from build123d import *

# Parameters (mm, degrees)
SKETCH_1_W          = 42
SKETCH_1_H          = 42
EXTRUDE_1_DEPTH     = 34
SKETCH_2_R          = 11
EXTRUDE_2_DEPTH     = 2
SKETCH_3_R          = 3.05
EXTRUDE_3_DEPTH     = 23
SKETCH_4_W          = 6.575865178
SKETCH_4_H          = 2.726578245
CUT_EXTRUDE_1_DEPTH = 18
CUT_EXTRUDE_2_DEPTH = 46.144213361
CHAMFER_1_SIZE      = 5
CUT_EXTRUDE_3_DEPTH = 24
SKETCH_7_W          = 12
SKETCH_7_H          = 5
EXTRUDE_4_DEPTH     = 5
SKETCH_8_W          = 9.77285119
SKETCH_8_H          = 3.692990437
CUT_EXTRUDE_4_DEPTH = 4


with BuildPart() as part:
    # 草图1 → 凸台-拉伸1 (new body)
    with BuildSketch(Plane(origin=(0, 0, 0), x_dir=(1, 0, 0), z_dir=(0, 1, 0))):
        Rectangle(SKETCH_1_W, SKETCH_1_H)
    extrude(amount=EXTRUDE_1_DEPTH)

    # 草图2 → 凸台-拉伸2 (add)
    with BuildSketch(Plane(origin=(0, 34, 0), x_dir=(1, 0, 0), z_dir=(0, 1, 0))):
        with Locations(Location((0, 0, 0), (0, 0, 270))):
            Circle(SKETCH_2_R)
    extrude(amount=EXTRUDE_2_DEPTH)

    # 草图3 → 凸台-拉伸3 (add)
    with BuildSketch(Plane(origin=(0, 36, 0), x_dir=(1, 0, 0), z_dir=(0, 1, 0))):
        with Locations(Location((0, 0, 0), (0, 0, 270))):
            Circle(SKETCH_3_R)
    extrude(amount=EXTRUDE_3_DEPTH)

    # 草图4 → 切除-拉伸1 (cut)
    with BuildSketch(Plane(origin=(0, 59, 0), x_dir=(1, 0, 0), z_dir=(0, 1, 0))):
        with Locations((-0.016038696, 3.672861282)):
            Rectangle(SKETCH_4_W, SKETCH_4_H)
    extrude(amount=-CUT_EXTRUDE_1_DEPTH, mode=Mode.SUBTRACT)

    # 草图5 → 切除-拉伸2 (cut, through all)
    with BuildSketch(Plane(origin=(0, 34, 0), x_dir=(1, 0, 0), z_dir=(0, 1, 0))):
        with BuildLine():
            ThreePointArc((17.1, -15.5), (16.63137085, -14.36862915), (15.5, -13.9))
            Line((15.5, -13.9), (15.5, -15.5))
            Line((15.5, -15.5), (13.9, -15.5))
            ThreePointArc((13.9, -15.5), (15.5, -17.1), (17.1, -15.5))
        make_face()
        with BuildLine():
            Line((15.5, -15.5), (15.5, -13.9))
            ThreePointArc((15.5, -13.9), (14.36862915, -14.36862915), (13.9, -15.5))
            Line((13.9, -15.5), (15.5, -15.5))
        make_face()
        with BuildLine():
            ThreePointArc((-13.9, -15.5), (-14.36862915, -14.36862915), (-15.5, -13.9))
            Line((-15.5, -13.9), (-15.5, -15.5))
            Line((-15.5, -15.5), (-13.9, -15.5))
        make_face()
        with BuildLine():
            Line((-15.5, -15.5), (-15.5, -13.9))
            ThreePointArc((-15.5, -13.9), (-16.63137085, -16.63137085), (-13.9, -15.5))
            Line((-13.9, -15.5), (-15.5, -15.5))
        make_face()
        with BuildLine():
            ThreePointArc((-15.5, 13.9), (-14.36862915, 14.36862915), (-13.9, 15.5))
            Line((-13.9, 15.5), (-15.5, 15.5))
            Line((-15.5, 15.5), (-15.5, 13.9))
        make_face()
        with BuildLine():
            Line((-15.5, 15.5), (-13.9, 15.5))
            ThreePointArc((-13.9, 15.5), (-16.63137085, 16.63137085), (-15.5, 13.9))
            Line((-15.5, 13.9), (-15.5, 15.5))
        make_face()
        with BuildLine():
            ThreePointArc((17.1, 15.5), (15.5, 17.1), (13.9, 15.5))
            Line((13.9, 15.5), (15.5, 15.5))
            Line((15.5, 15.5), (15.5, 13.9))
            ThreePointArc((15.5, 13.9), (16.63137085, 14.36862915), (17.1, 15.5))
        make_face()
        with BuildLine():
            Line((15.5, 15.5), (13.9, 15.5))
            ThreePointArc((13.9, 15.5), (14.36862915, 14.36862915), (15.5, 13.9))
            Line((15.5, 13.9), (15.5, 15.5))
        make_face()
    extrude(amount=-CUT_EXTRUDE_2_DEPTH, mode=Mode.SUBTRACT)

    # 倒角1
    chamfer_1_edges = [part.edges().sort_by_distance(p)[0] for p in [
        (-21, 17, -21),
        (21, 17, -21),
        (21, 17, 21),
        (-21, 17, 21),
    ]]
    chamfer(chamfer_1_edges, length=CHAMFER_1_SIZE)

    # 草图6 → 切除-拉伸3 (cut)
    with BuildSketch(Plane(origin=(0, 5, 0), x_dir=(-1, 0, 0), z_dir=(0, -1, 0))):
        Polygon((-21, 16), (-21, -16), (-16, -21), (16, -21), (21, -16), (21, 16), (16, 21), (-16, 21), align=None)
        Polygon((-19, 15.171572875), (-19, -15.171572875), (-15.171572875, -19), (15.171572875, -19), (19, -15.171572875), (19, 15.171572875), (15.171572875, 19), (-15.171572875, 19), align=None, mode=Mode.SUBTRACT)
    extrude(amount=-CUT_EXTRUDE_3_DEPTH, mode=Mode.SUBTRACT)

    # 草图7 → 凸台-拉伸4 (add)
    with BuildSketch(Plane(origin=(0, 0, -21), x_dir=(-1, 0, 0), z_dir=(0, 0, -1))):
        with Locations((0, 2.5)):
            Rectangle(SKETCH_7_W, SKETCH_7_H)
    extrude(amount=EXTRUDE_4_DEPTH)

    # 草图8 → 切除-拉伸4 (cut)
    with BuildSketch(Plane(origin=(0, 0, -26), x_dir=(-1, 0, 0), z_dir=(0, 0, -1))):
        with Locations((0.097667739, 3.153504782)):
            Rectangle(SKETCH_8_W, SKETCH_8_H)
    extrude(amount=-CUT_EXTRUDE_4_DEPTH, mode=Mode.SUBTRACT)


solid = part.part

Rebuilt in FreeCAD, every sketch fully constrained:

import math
import FreeCAD as App
import Part
import Sketcher
from FreeCAD import Vector


def edges_at(feature, points):
    """Names of the edges that pass closest to the given points."""
    edges = feature.Shape.Edges
    near = lambda p: min(range(len(edges)), key=lambda i: edges[i].distToShape(Part.Vertex(*p))[0])
    return sorted({f"Edge{near(p) + 1}" for p in points})


def add_polygon(sketch, points):
    """Adds a closed chain of lines whose ends are joined by coincident constraints."""
    first, n = sketch.GeometryCount, len(points)
    for a, b in zip(points, points[1:] + points[:1]):
        sketch.addGeometry(Part.LineSegment(App.Vector(*a, 0), App.Vector(*b, 0)), False)
    for i in range(n):
        sketch.addConstraint(Sketcher.Constraint("Coincident", first + i, 2, first + (i + 1) % n, 1))

doc = App.newDocument("Part")
body = doc.addObject("PartDesign::Body", "Body")

# Sketch on XZ plane
sketch1 = body.newObject("Sketcher::SketchObject", "Sketch")
sketch1.AttachmentSupport = (doc.getObject("XZ_Plane"), [""])
sketch1.MapMode = "FlatFace"
add_polygon(sketch1, [(-21, -21), (-21, 21), (21, 21), (21, -21)])  # lines 0-3
sketch1.addConstraint([
    Sketcher.Constraint("Vertical", 0),
    Sketcher.Constraint("Horizontal", 1),
    Sketcher.Constraint("Vertical", 2),
    Sketcher.Constraint("Horizontal", 3),
    Sketcher.Constraint("Symmetric", 0, 2, 2, 2, -1, 1),
    Sketcher.Constraint("Equal", 3, 0),
    Sketcher.Constraint("DistanceX", 1, 1, 1, 2, 42.0),
])
pad1 = body.newObject("PartDesign::Pad", "Pad")
pad1.Profile = sketch1
pad1.Length = 34
pad1.Reversed = True

# Sketch on XZ plane
sketch2 = body.newObject("Sketcher::SketchObject", "Sketch001")
sketch2.AttachmentSupport = (doc.getObject("XZ_Plane"), [""])
sketch2.MapMode = "FlatFace"
sketch2.AttachmentOffset = App.Placement(Vector(0, 0, -34), App.Rotation())
sketch2.addGeometry(Part.Circle(Vector(0, 0, 0), Vector(0, 0, 1), 11), False)
sketch2.addConstraint([
    Sketcher.Constraint("Coincident", 0, 3, -1, 1),
    Sketcher.Constraint("Diameter", 0, 22.0),
])
pad2 = body.newObject("PartDesign::Pad", "Pad001")
pad2.Profile = sketch2
pad2.Length = 2
pad2.Reversed = True

# Sketch on XZ plane
sketch3 = body.newObject("Sketcher::SketchObject", "Sketch002")
sketch3.AttachmentSupport = (doc.getObject("XZ_Plane"), [""])
sketch3.MapMode = "FlatFace"
sketch3.AttachmentOffset = App.Placement(Vector(0, 0, -36), App.Rotation())
sketch3.addGeometry(Part.Circle(Vector(0, 0, 0), Vector(0, 0, 1), 3), False)
sketch3.addConstraint([
    Sketcher.Constraint("Coincident", 0, 3, -1, 1),
    Sketcher.Constraint("Diameter", 0, 6.1),
])
pad3 = body.newObject("PartDesign::Pad", "Pad002")
pad3.Profile = sketch3
pad3.Length = 23
pad3.Reversed = True

# Sketch on XZ plane
sketch4 = body.newObject("Sketcher::SketchObject", "Sketch003")
sketch4.AttachmentSupport = (doc.getObject("XZ_Plane"), [""])
sketch4.MapMode = "FlatFace"
sketch4.AttachmentOffset = App.Placement(Vector(0, 0, -59), App.Rotation())
add_polygon(sketch4, [(-3.3, -5), (-3.3, -2.3), (3.3, -2.3), (3.3, -5)])  # lines 0-3
sketch4.addConstraint([
    Sketcher.Constraint("Vertical", 0),
    Sketcher.Constraint("Horizontal", 1),
    Sketcher.Constraint("Vertical", 2),
    Sketcher.Constraint("Horizontal", 3),
    Sketcher.Constraint("DistanceY", 0, 1, 0, 2, 2.726578),
    Sketcher.Constraint("DistanceX", 1, 1, 1, 2, 6.575865),
    Sketcher.Constraint("DistanceX", 0, 2, -1, 1, 3.303971),
    Sketcher.Constraint("DistanceY", 2, 2, -1, 1, 5.03615),
])
pocket1 = body.newObject("PartDesign::Pocket", "Pocket")
pocket1.Profile = sketch4
pocket1.Length = 18
pocket1.Reversed = True

# Sketch on XZ plane
sketch5 = body.newObject("Sketcher::SketchObject", "Sketch004")
sketch5.AttachmentSupport = (doc.getObject("XZ_Plane"), [""])
sketch5.MapMode = "FlatFace"
sketch5.AttachmentOffset = App.Placement(Vector(0, 0, -34), App.Rotation())
sketch5.addGeometry([
    Part.ArcOfCircle(Part.Circle(Vector(15.5, 15.5, 0), Vector(0, 0, 1), 1.6), math.radians(-90), math.radians(0)),  # 0
    Part.ArcOfCircle(Part.Circle(Vector(15.5, 15.5, 0), Vector(0, 0, 1), 1.6), math.radians(180), math.radians(270)),  # 1
    Part.ArcOfCircle(Part.Circle(Vector(15.5, 15.5, 0), Vector(0, 0, 1), 1.6), math.radians(0), math.radians(180)),  # 2
    Part.ArcOfCircle(Part.Circle(Vector(-15.5, 15.5, 0), Vector(0, 0, 1), 1.6), math.radians(-90), math.radians(0)),  # 3
    Part.ArcOfCircle(Part.Circle(Vector(-15.5, 15.5, 0), Vector(0, 0, 1), 1.6), math.radians(0), math.radians(270)),  # 4
    Part.ArcOfCircle(Part.Circle(Vector(-15.5, -15.5, 0), Vector(0, 0, 1), 1.6), math.radians(0), math.radians(90)),  # 5
    Part.ArcOfCircle(Part.Circle(Vector(-15.5, -15.5, 0), Vector(0, 0, 1), 1.6), math.radians(90), math.radians(360)),  # 6
    Part.ArcOfCircle(Part.Circle(Vector(15.5, -15.5, 0), Vector(0, 0, 1), 1.6), math.radians(180), math.radians(360)),  # 7
    Part.ArcOfCircle(Part.Circle(Vector(15.5, -15.5, 0), Vector(0, 0, 1), 1.6), math.radians(90), math.radians(180)),  # 8
    Part.ArcOfCircle(Part.Circle(Vector(15.5, -15.5, 0), Vector(0, 0, 1), 1.6), math.radians(0), math.radians(90)),  # 9
], False)
sketch5.addConstraint([
    Sketcher.Constraint("Tangent", 0, 1, 1, 2),
    Sketcher.Constraint("Tangent", 1, 1, 2, 2),
    Sketcher.Constraint("Tangent", 2, 1, 0, 2),
    Sketcher.Constraint("Tangent", 3, 1, 4, 2),
    Sketcher.Constraint("Coincident", 4, 1, 3, 2),
    Sketcher.Constraint("Tangent", 5, 1, 6, 2),
    Sketcher.Constraint("Coincident", 6, 1, 5, 2),
    Sketcher.Constraint("Tangent", 7, 1, 8, 2),
    Sketcher.Constraint("Tangent", 8, 1, 9, 2),
    Sketcher.Constraint("Tangent", 9, 1, 7, 2),
    Sketcher.Constraint("Equal", 2, 3),
    Sketcher.Constraint("Equal", 4, 5),
    Sketcher.Constraint("Equal", 6, 7),
    Sketcher.Constraint("Symmetric", 0, 3, 5, 3, -1, 1),
    Sketcher.Constraint("Symmetric", 3, 3, 7, 3, -1, 1),
    Sketcher.Constraint("Symmetric", 0, 3, 3, 3, -2),
    Sketcher.Constraint("Horizontal", 4, 3, 1, 1),
    Sketcher.Constraint("Horizontal", 1, 1, 2, 1),
    Sketcher.Constraint("Horizontal", 2, 1, 4, 1),
    Sketcher.Constraint("Horizontal", 9, 3, 5, 1),
    Sketcher.Constraint("Horizontal", 5, 1, 7, 1),
    Sketcher.Constraint("Horizontal", 7, 1, 9, 1),
    Sketcher.Constraint("Vertical", 9, 3, 0, 1),
    Sketcher.Constraint("Vertical", 6, 3, 3, 1),
    Sketcher.Constraint("Vertical", 3, 1, 6, 1),
    Sketcher.Constraint("Vertical", 0, 1, 8, 1),
    Sketcher.Constraint("Radius", 0, 1.6),
    Sketcher.Constraint("DistanceX", 3, 3, 0, 3, 31.0),
    Sketcher.Constraint("DistanceY", 5, 3, 3, 3, 31.0),
])
pocket2 = body.newObject("PartDesign::Pocket", "Pocket001")
pocket2.Profile = sketch5
pocket2.Type = "ThroughAll"
pocket2.Reversed = True
doc.recompute()

chamfer = body.newObject("PartDesign::Chamfer", "Chamfer")
chamfer.Base = (pocket2, edges_at(pocket2, [
    (-21, 17, -21),
    (21, 17, -21),
    (21, 17, 21),
    (-21, 17, 21),
]))
chamfer.Size = 5

# Sketch on XZ plane
sketch6 = body.newObject("Sketcher::SketchObject", "Sketch005")
sketch6.AttachmentSupport = (doc.getObject("XZ_Plane"), [""])
sketch6.MapMode = "FlatFace"
sketch6.AttachmentOffset = App.Placement(Vector(0, 0, -5), App.Rotation())
add_polygon(sketch6, [(21, -16), (21, 16), (16, 21), (-16, 21), (-21, 16), (-21, -16), (-16, -21), (16, -21)])  # lines 0-7
add_polygon(sketch6, [(19, 15), (19, -15), (15, -19), (-15, -19), (-19, -15), (-19, 15), (-15, 19), (15, 19)])  # lines 8-15
sketch6.addConstraint([
    Sketcher.Constraint("Vertical", 0),
    Sketcher.Constraint("Horizontal", 2),
    Sketcher.Constraint("Vertical", 4),
    Sketcher.Constraint("Horizontal", 6),
    Sketcher.Constraint("Vertical", 8),
    Sketcher.Constraint("Horizontal", 10),
    Sketcher.Constraint("Vertical", 12),
    Sketcher.Constraint("Horizontal", 14),
    Sketcher.Constraint("Symmetric", 0, 2, 4, 2, -1, 1),
    Sketcher.Constraint("Symmetric", 1, 2, 5, 2, -1, 1),
    Sketcher.Constraint("Symmetric", 8, 2, 12, 2, -1, 1),
    Sketcher.Constraint("Symmetric", 9, 2, 13, 2, -1, 1),
    Sketcher.Constraint("Perpendicular", 1, 3),
    Sketcher.Constraint("Perpendicular", 5, 7),
    Sketcher.Constraint("Parallel", 7, 9),
    Sketcher.Constraint("Perpendicular", 9, 11),
    Sketcher.Constraint("Perpendicular", 13, 15),
    Sketcher.Constraint("Horizontal", 0, 2, 3, 2),
    Sketcher.Constraint("Horizontal", 4, 2, 7, 2),
    Sketcher.Constraint("Horizontal", 8, 2, 11, 2),
    Sketcher.Constraint("Horizontal", 12, 2, 15, 2),
    Sketcher.Constraint("Vertical", 2, 2, 5, 2),
    Sketcher.Constraint("Equal", 6, 0),
    Sketcher.Constraint("Equal", 14, 8),
    Sketcher.Constraint("DistanceX", 2, 2, 2, 1, 32.0),
    Sketcher.Constraint("DistanceX", -1, 1, 0, 2, 21.0),
    Sketcher.Constraint("DistanceX", -1, 1, 8, 2, 19.0),
    Sketcher.Constraint("DistanceX", 10, 2, 10, 1, 30.343146),
])
pocket3 = body.newObject("PartDesign::Pocket", "Pocket002")
pocket3.Profile = sketch6
pocket3.Length = 24

# Sketch on XY plane
sketch7 = body.newObject("Sketcher::SketchObject", "Sketch006")
sketch7.AttachmentSupport = (doc.getObject("XY_Plane"), [""])
sketch7.MapMode = "FlatFace"
sketch7.AttachmentOffset = App.Placement(Vector(0, 0, -21), App.Rotation())
add_polygon(sketch7, [(6, 5), (6, 0), (-6, 0), (-6, 5)])  # lines 0-3
sketch7.addConstraint([
    Sketcher.Constraint("Vertical", 0),
    Sketcher.Constraint("Horizontal", 1),
    Sketcher.Constraint("Vertical", 2),
    Sketcher.Constraint("Horizontal", 3),
    Sketcher.Constraint("Symmetric", 0, 2, 1, 2, -1, 1),
    Sketcher.Constraint("DistanceX", 1, 2, 1, 1, 12.0),
    Sketcher.Constraint("DistanceY", 0, 2, 0, 1, 5.0),
])
pad4 = body.newObject("PartDesign::Pad", "Pad003")
pad4.Profile = sketch7
pad4.Length = 5
pad4.Reversed = True

# Sketch on XY plane
sketch8 = body.newObject("Sketcher::SketchObject", "Sketch007")
sketch8.AttachmentSupport = (doc.getObject("XY_Plane"), [""])
sketch8.MapMode = "FlatFace"
sketch8.AttachmentOffset = App.Placement(Vector(0, 0, -26), App.Rotation())
add_polygon(sketch8, [(4.8, 5), (4.8, 1.3), (-5, 1.3), (-5, 5)])  # lines 0-3
sketch8.addConstraint([
    Sketcher.Constraint("Vertical", 0),
    Sketcher.Constraint("Horizontal", 1),
    Sketcher.Constraint("Vertical", 2),
    Sketcher.Constraint("Horizontal", 3),
    Sketcher.Constraint("DistanceY", -1, 1, 2, 2, 5.0),
    Sketcher.Constraint("DistanceX", 1, 2, 1, 1, 9.772851),
    Sketcher.Constraint("DistanceY", 0, 2, 0, 1, 3.69299),
    Sketcher.Constraint("DistanceX", -1, 1, 0, 2, 4.788758),
])
pocket4 = body.newObject("PartDesign::Pocket", "Pocket003")
pocket4.Profile = sketch8
pocket4.Length = 4
pocket4.Reversed = True

doc.recompute()
